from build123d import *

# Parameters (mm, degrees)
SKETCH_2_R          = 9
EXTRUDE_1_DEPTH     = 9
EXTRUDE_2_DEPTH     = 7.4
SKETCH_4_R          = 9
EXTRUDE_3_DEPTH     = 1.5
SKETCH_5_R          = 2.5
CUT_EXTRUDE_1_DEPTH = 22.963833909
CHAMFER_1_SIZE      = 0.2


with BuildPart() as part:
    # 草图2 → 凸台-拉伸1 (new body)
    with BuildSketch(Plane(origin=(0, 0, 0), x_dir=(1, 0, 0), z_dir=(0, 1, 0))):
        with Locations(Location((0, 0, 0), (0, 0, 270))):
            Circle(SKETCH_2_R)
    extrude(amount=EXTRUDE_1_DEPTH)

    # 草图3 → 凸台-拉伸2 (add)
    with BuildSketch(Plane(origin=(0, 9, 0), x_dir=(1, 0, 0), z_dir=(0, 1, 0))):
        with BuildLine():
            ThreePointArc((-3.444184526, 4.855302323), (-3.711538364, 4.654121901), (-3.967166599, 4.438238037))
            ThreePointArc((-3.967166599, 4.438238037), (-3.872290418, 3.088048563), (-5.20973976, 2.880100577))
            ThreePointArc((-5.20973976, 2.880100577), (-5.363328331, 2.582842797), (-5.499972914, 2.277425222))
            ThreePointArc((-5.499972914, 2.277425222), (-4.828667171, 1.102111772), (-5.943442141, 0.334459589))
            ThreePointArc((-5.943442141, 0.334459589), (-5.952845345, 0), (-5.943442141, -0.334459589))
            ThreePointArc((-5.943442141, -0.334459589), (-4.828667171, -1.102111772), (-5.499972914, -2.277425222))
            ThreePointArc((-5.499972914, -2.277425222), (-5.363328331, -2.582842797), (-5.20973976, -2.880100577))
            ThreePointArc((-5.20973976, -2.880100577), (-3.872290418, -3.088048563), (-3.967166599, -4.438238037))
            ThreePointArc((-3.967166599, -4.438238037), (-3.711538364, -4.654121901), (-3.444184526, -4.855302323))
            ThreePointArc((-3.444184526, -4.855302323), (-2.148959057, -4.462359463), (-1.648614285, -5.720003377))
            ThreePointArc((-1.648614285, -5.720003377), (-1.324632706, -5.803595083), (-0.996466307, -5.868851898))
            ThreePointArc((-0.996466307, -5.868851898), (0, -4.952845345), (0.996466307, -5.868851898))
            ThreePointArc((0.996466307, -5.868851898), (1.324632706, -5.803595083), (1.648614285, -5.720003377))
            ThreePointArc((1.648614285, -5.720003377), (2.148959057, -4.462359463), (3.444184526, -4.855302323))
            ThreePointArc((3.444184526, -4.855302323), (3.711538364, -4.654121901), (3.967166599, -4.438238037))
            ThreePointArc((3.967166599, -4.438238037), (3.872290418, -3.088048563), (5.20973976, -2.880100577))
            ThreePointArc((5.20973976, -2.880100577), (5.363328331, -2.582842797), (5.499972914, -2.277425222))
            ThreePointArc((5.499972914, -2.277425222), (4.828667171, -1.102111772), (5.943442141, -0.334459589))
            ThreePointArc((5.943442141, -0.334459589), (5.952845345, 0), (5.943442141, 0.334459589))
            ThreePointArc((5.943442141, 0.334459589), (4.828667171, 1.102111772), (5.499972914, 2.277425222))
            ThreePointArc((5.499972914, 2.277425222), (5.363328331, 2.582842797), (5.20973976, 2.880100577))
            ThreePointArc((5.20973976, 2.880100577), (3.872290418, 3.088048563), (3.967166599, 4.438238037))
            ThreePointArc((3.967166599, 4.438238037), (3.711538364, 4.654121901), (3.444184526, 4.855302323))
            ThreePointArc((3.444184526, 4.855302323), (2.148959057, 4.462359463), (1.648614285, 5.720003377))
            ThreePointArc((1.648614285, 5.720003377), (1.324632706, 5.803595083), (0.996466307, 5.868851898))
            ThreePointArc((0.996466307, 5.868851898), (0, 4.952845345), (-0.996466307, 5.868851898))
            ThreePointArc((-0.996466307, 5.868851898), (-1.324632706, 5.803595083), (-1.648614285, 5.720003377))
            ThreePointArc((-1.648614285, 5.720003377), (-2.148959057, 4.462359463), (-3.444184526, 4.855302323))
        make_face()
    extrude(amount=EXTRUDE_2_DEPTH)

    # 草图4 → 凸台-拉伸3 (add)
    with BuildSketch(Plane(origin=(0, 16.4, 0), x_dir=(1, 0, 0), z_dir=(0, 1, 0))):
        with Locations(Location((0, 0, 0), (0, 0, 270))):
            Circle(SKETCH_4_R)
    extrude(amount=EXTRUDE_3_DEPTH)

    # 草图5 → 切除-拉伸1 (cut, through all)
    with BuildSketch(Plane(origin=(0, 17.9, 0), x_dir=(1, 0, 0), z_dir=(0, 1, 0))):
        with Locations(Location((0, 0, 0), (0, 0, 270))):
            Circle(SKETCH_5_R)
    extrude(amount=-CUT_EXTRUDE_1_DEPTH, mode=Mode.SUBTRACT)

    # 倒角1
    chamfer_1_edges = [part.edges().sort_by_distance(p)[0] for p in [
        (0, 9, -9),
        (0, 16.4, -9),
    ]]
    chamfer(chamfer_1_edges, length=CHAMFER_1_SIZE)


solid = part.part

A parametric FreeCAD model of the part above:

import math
import FreeCAD as App
import Part
import Sketcher
from FreeCAD import Vector
Q = App.Units.Quantity


def edges_at(feature, points):
    """Names of the edges that pass closest to the given points."""
    edges = feature.Shape.Edges
    near = lambda p: min(range(len(edges)), key=lambda i: edges[i].distToShape(Part.Vertex(*p))[0])
    return sorted({f"Edge{near(p) + 1}" for p in points})

doc = App.newDocument("Part")
body = doc.addObject("PartDesign::Body", "Body")

# Sketch on XZ plane
sketch1 = body.newObject("Sketcher::SketchObject", "Sketch")
sketch1.AttachmentSupport = (doc.getObject("XZ_Plane"), [""])
sketch1.MapMode = "FlatFace"
sketch1.addGeometry(Part.Circle(Vector(0, 0, 0), Vector(0, 0, 1), 9), False)
sketch1.addConstraint([
    Sketcher.Constraint("Coincident", 0, 3, -1, 1),
    Sketcher.Constraint("Diameter", 0, Q("18 mm")),
])
pad1 = body.newObject("PartDesign::Pad", "Pad")
pad1.Profile = sketch1
pad1.Length = 9
pad1.Reversed = True

# Sketch on XZ plane
sketch2 = body.newObject("Sketcher::SketchObject", "Sketch001")
sketch2.AttachmentSupport = (doc.getObject("XZ_Plane"), [""])
sketch2.MapMode = "FlatFace"
sketch2.AttachmentOffset = App.Placement(Vector(0, 0, -9), App.Rotation())
sketch2.addGeometry([
    Part.ArcOfCircle(Part.Circle(Vector(0, 0, 0), Vector(0, 0, 1), 6), math.radians(-131.79), math.radians(-125.35)),  # 0
    Part.ArcOfCircle(Part.Circle(Vector(-4.7, -3.7, 0), Vector(0, 0, 1), 1), math.radians(-47), math.radians(124)),  # 1
    Part.ArcOfCircle(Part.Circle(Vector(0, 0, 0), Vector(0, 0, 1), 6), math.radians(-157.51), math.radians(-151.06)),  # 2
    Part.ArcOfCircle(Part.Circle(Vector(-5.8, -1.3, 0), Vector(0, 0, 1), 1), math.radians(-72), math.radians(98)),  # 3
    Part.ArcOfCircle(Part.Circle(Vector(0, 0, 0), Vector(0, 0, 1), 6), math.radians(176.78), math.radians(183.22)),  # 4
    Part.ArcOfCircle(Part.Circle(Vector(-5.8, 1.3, 0), Vector(0, 0, 1), 1), math.radians(-98), math.radians(72)),  # 5
    Part.ArcOfCircle(Part.Circle(Vector(0, 0, 0), Vector(0, 0, 1), 6), math.radians(151.06), math.radians(157.51)),  # 6
    Part.ArcOfCircle(Part.Circle(Vector(-4.7, 3.7, 0), Vector(0, 0, 1), 1), math.radians(-124), math.radians(47)),  # 7
    Part.ArcOfCircle(Part.Circle(Vector(0, 0, 0), Vector(0, 0, 1), 6), math.radians(125.35), math.radians(131.79)),  # 8
    Part.ArcOfCircle(Part.Circle(Vector(-2.6, 5.4, 0), Vector(0, 0, 1), 1), math.radians(-149), math.radians(21)),  # 9
    Part.ArcOfCircle(Part.Circle(Vector(0, 0, 0), Vector(0, 0, 1), 6), math.radians(99.64), math.radians(106.08)),  # 10
    Part.ArcOfCircle(Part.Circle(Vector(0, 6, 0), Vector(0, 0, 1), 1), math.radians(-175), math.radians(-5)),  # 11
    Part.ArcOfCircle(Part.Circle(Vector(0, 0, 0), Vector(0, 0, 1), 6), math.radians(73.92), math.radians(80.36)),  # 12
    Part.ArcOfCircle(Part.Circle(Vector(2.6, 5.4, 0), Vector(0, 0, 1), 1), math.radians(159), math.radians(329)),  # 13
    Part.ArcOfCircle(Part.Circle(Vector(0, 0, 0), Vector(0, 0, 1), 6), math.radians(48.21), math.radians(54.65)),  # 14
    Part.ArcOfCircle(Part.Circle(Vector(4.7, 3.7, 0), Vector(0, 0, 1), 1), math.radians(133), math.radians(304)),  # 15
    Part.ArcOfCircle(Part.Circle(Vector(0, 0, 0), Vector(0, 0, 1), 6), math.radians(22.49), math.radians(28.94)),  # 16
    Part.ArcOfCircle(Part.Circle(Vector(5.8, 1.3, 0), Vector(0, 0, 1), 1), math.radians(108), math.radians(278)),  # 17
    Part.ArcOfCircle(Part.Circle(Vector(0, 0, 0), Vector(0, 0, 1), 6), math.radians(-3.22), math.radians(3.22)),  # 18
    Part.ArcOfCircle(Part.Circle(Vector(5.8, -1.3, 0), Vector(0, 0, 1), 1), math.radians(82), math.radians(252)),  # 19
    Part.ArcOfCircle(Part.Circle(Vector(0, 0, 0), Vector(0, 0, 1), 6), math.radians(-28.94), math.radians(-22.49)),  # 20
    Part.ArcOfCircle(Part.Circle(Vector(4.7, -3.7, 0), Vector(0, 0, 1), 1), math.radians(56), math.radians(227)),  # 21
    Part.ArcOfCircle(Part.Circle(Vector(0, 0, 0), Vector(0, 0, 1), 6), math.radians(-54.65), math.radians(-48.21)),  # 22
    Part.ArcOfCircle(Part.Circle(Vector(2.6, -5.4, 0), Vector(0, 0, 1), 1), math.radians(31), math.radians(201)),  # 23
    Part.ArcOfCircle(Part.Circle(Vector(0, 0, 0), Vector(0, 0, 1), 6), math.radians(-80.36), math.radians(-73.92)),  # 24
    Part.ArcOfCircle(Part.Circle(Vector(0, -6, 0), Vector(0, 0, 1), 1), math.radians(5), math.radians(175)),  # 25
    Part.ArcOfCircle(Part.Circle(Vector(0, 0, 0), Vector(0, 0, 1), 6), math.radians(-106.08), math.radians(-99.64)),  # 26
    Part.ArcOfCircle(Part.Circle(Vector(-2.6, -5.4, 0), Vector(0, 0, 1), 1), math.radians(-21), math.radians(149)),  # 27
], False)
sketch2.addConstraint([
    Sketcher.Constraint("Coincident", 0, 1, 1, 1),
    Sketcher.Constraint("Coincident", 1, 2, 2, 2),
    Sketcher.Constraint("Coincident", 2, 1, 3, 1),
    Sketcher.Constraint("Coincident", 3, 2, 4, 2),
    Sketcher.Constraint("Coincident", 4, 1, 5, 1),
    Sketcher.Constraint("Coincident", 5, 2, 6, 2),
    Sketcher.Constraint("Coincident", 6, 1, 7, 1),
    Sketcher.Constraint("Coincident", 7, 2, 8, 2),
    Sketcher.Constraint("Coincident", 8, 1, 9, 1),
    Sketcher.Constraint("Coincident", 9, 2, 10, 2),
    Sketcher.Constraint("Coincident", 10, 1, 11, 1),
    Sketcher.Constraint("Coincident", 11, 2, 12, 2),
    Sketcher.Constraint("Coincident", 12, 1, 13, 1),
    Sketcher.Constraint("Coincident", 13, 2, 14, 2),
    Sketcher.Constraint("Coincident", 14, 1, 15, 1),
    Sketcher.Constraint("Coincident", 15, 2, 16, 2),
    Sketcher.Constraint("Coincident", 16, 1, 17, 1),
    Sketcher.Constraint("Coincident", 17, 2, 18, 2),
    Sketcher.Constraint("Coincident", 18, 1, 19, 1),
    Sketcher.Constraint("Coincident", 19, 2, 20, 2),
    Sketcher.Constraint("Coincident", 20, 1, 21, 1),
    Sketcher.Constraint("Coincident", 21, 2, 22, 2),
    Sketcher.Constraint("Coincident", 22, 1, 23, 1),
    Sketcher.Constraint("Coincident", 23, 2, 24, 2),
    Sketcher.Constraint("Coincident", 24, 1, 25, 1),
    Sketcher.Constraint("Coincident", 25, 2, 26, 2),
    Sketcher.Constraint("Coincident", 26, 1, 27, 1),
    Sketcher.Constraint("Coincident", 27, 2, 0, 2),
    Sketcher.Constraint("Coincident", 0, 3, -1, 1),
    Sketcher.Constraint("Coincident", 2, 3, -1, 1),
    Sketcher.Constraint("Coincident", 4, 3, -1, 1),
    Sketcher.Constraint("Coincident", 6, 3, -1, 1),
    Sketcher.Constraint("Coincident", 8, 3, -1, 1),
    Sketcher.Constraint("Coincident", 10, 3, -1, 1),
    Sketcher.Constraint("Coincident", 12, 3, -1, 1),
    Sketcher.Constraint("Coincident", 14, 3, -1, 1),
    Sketcher.Constraint("Coincident", 16, 3, -1, 1),
    Sketcher.Constraint("Coincident", 18, 3, -1, 1),
    Sketcher.Constraint("Coincident", 20, 3, -1, 1),
    Sketcher.Constraint("Coincident", 22, 3, -1, 1),
    Sketcher.Constraint("Coincident", 24, 3, -1, 1),
    Sketcher.Constraint("Coincident", 26, 3, -1, 1),
    Sketcher.Constraint("Equal", 0, 2),
    Sketcher.Constraint("Equal", 1, 3),
    Sketcher.Constraint("Equal", 2, 4),
    Sketcher.Constraint("Equal", 3, 5),
    Sketcher.Constraint("Equal", 4, 6),
    Sketcher.Constraint("Equal", 5, 7),
    Sketcher.Constraint("Equal", 6, 8),
    Sketcher.Constraint("Equal", 7, 9),
    Sketcher.Constraint("Equal", 8, 10),
    Sketcher.Constraint("Equal", 9, 11),
    Sketcher.Constraint("Equal", 10, 12),
    Sketcher.Constraint("Equal", 11, 13),
    Sketcher.Constraint("Equal", 12, 14),
    Sketcher.Constraint("Equal", 13, 15),
    Sketcher.Constraint("Equal", 14, 16),
    Sketcher.Constraint("Equal", 15, 17),
    Sketcher.Constraint("Equal", 16, 18),
    Sketcher.Constraint("Equal", 17, 19),
    Sketcher.Constraint("Equal", 18, 20),
    Sketcher.Constraint("Equal", 19, 21),
    Sketcher.Constraint("Equal", 20, 22),
    Sketcher.Constraint("Equal", 21, 23),
    Sketcher.Constraint("Equal", 22, 24),
    Sketcher.Constraint("Equal", 23, 25),
    Sketcher.Constraint("Equal", 24, 26),
    Sketcher.Constraint("Equal", 25, 27),
    Sketcher.Constraint("Symmetric", 1, 3, 15, 3, -1, 1),
    Sketcher.Constraint("Symmetric", 3, 3, 17, 3, -1, 1),
    Sketcher.Constraint("Symmetric", 5, 3, 19, 3, -1, 1),
    Sketcher.Constraint("Symmetric", 7, 3, 21, 3, -1, 1),
    Sketcher.Constraint("Symmetric", 9, 3, 23, 3, -1, 1),
    Sketcher.Constraint("Symmetric", 11, 3, 25, 3, -1, 1),
    Sketcher.Constraint("Symmetric", 13, 3, 27, 3, -1, 1),
    Sketcher.Constraint("Symmetric", 9, 3, 13, 3, -2),
    Sketcher.Constraint("Symmetric", 7, 3, 15, 3, -2),
    Sketcher.Constraint("Symmetric", 5, 3, 17, 3, -2),
    Sketcher.Constraint("PointOnObject", 11, 3, -2),
    Sketcher.Constraint("Radius", 1, Q("1 mm")),
    Sketcher.Constraint("Radius", 0, Q("5.952845 mm")),
    Sketcher.Constraint("DistanceY", 1, 2, -1, 1, Q("2.880101 mm")),
    Sketcher.Constraint("DistanceY", 0, 1, 1, 3, Q("0.7267 mm")),
    Sketcher.Constraint("DistanceY", 6, 1, 8, 1, Q("1.975202 mm")),
    Sketcher.Constraint("DistanceY", 8, 1, 9, 2, Q("0.864701 mm")),
    Sketcher.Constraint("DistanceX", 7, 2, 10, 1, Q("2.9707 mm")),
    Sketcher.Constraint("DistanceY", 3, 2, -1, 1, Q("0.33446 mm")),
    Sketcher.Constraint("DistanceY", 1, 3, 5, 3, Q("5.036171 mm")),
])
pad2 = body.newObject("PartDesign::Pad", "Pad001")
pad2.Profile = sketch2
pad2.Length = 7.4
pad2.Reversed = True

# Sketch on XZ plane
sketch3 = body.newObject("Sketcher::SketchObject", "Sketch002")
sketch3.AttachmentSupport = (doc.getObject("XZ_Plane"), [""])
sketch3.MapMode = "FlatFace"
sketch3.AttachmentOffset = App.Placement(Vector(0, 0, -16.4), App.Rotation())
sketch3.addGeometry(Part.Circle(Vector(0, 0, 0), Vector(0, 0, 1), 9), False)
sketch3.addConstraint([
    Sketcher.Constraint("Coincident", 0, 3, -1, 1),
    Sketcher.Constraint("Diameter", 0, Q("18 mm")),
])
pad3 = body.newObject("PartDesign::Pad", "Pad002")
pad3.Profile = sketch3
pad3.Length = 1.5
pad3.Reversed = True

# Sketch on XZ plane
sketch4 = body.newObject("Sketcher::SketchObject", "Sketch003")
sketch4.AttachmentSupport = (doc.getObject("XZ_Plane"), [""])
sketch4.MapMode = "FlatFace"
sketch4.AttachmentOffset = App.Placement(Vector(0, 0, -17.9), App.Rotation())
sketch4.addGeometry(Part.Circle(Vector(0, 0, 0), Vector(0, 0, 1), 2.5), False)
sketch4.addConstraint([
    Sketcher.Constraint("Coincident", 0, 3, -1, 1),
    Sketcher.Constraint("Diameter", 0, Q("5 mm")),
])
pocket1 = body.newObject("PartDesign::Pocket", "Pocket")
pocket1.Profile = sketch4
pocket1.Type = "ThroughAll"
pocket1.Reversed = True
doc.recompute()

chamfer = body.newObject("PartDesign::Chamfer", "Chamfer")
chamfer.Base = (pocket1, edges_at(pocket1, [(0, 9, -9), (0, 16.4, -9)]))
chamfer.Size = 0.2

doc.recompute()
